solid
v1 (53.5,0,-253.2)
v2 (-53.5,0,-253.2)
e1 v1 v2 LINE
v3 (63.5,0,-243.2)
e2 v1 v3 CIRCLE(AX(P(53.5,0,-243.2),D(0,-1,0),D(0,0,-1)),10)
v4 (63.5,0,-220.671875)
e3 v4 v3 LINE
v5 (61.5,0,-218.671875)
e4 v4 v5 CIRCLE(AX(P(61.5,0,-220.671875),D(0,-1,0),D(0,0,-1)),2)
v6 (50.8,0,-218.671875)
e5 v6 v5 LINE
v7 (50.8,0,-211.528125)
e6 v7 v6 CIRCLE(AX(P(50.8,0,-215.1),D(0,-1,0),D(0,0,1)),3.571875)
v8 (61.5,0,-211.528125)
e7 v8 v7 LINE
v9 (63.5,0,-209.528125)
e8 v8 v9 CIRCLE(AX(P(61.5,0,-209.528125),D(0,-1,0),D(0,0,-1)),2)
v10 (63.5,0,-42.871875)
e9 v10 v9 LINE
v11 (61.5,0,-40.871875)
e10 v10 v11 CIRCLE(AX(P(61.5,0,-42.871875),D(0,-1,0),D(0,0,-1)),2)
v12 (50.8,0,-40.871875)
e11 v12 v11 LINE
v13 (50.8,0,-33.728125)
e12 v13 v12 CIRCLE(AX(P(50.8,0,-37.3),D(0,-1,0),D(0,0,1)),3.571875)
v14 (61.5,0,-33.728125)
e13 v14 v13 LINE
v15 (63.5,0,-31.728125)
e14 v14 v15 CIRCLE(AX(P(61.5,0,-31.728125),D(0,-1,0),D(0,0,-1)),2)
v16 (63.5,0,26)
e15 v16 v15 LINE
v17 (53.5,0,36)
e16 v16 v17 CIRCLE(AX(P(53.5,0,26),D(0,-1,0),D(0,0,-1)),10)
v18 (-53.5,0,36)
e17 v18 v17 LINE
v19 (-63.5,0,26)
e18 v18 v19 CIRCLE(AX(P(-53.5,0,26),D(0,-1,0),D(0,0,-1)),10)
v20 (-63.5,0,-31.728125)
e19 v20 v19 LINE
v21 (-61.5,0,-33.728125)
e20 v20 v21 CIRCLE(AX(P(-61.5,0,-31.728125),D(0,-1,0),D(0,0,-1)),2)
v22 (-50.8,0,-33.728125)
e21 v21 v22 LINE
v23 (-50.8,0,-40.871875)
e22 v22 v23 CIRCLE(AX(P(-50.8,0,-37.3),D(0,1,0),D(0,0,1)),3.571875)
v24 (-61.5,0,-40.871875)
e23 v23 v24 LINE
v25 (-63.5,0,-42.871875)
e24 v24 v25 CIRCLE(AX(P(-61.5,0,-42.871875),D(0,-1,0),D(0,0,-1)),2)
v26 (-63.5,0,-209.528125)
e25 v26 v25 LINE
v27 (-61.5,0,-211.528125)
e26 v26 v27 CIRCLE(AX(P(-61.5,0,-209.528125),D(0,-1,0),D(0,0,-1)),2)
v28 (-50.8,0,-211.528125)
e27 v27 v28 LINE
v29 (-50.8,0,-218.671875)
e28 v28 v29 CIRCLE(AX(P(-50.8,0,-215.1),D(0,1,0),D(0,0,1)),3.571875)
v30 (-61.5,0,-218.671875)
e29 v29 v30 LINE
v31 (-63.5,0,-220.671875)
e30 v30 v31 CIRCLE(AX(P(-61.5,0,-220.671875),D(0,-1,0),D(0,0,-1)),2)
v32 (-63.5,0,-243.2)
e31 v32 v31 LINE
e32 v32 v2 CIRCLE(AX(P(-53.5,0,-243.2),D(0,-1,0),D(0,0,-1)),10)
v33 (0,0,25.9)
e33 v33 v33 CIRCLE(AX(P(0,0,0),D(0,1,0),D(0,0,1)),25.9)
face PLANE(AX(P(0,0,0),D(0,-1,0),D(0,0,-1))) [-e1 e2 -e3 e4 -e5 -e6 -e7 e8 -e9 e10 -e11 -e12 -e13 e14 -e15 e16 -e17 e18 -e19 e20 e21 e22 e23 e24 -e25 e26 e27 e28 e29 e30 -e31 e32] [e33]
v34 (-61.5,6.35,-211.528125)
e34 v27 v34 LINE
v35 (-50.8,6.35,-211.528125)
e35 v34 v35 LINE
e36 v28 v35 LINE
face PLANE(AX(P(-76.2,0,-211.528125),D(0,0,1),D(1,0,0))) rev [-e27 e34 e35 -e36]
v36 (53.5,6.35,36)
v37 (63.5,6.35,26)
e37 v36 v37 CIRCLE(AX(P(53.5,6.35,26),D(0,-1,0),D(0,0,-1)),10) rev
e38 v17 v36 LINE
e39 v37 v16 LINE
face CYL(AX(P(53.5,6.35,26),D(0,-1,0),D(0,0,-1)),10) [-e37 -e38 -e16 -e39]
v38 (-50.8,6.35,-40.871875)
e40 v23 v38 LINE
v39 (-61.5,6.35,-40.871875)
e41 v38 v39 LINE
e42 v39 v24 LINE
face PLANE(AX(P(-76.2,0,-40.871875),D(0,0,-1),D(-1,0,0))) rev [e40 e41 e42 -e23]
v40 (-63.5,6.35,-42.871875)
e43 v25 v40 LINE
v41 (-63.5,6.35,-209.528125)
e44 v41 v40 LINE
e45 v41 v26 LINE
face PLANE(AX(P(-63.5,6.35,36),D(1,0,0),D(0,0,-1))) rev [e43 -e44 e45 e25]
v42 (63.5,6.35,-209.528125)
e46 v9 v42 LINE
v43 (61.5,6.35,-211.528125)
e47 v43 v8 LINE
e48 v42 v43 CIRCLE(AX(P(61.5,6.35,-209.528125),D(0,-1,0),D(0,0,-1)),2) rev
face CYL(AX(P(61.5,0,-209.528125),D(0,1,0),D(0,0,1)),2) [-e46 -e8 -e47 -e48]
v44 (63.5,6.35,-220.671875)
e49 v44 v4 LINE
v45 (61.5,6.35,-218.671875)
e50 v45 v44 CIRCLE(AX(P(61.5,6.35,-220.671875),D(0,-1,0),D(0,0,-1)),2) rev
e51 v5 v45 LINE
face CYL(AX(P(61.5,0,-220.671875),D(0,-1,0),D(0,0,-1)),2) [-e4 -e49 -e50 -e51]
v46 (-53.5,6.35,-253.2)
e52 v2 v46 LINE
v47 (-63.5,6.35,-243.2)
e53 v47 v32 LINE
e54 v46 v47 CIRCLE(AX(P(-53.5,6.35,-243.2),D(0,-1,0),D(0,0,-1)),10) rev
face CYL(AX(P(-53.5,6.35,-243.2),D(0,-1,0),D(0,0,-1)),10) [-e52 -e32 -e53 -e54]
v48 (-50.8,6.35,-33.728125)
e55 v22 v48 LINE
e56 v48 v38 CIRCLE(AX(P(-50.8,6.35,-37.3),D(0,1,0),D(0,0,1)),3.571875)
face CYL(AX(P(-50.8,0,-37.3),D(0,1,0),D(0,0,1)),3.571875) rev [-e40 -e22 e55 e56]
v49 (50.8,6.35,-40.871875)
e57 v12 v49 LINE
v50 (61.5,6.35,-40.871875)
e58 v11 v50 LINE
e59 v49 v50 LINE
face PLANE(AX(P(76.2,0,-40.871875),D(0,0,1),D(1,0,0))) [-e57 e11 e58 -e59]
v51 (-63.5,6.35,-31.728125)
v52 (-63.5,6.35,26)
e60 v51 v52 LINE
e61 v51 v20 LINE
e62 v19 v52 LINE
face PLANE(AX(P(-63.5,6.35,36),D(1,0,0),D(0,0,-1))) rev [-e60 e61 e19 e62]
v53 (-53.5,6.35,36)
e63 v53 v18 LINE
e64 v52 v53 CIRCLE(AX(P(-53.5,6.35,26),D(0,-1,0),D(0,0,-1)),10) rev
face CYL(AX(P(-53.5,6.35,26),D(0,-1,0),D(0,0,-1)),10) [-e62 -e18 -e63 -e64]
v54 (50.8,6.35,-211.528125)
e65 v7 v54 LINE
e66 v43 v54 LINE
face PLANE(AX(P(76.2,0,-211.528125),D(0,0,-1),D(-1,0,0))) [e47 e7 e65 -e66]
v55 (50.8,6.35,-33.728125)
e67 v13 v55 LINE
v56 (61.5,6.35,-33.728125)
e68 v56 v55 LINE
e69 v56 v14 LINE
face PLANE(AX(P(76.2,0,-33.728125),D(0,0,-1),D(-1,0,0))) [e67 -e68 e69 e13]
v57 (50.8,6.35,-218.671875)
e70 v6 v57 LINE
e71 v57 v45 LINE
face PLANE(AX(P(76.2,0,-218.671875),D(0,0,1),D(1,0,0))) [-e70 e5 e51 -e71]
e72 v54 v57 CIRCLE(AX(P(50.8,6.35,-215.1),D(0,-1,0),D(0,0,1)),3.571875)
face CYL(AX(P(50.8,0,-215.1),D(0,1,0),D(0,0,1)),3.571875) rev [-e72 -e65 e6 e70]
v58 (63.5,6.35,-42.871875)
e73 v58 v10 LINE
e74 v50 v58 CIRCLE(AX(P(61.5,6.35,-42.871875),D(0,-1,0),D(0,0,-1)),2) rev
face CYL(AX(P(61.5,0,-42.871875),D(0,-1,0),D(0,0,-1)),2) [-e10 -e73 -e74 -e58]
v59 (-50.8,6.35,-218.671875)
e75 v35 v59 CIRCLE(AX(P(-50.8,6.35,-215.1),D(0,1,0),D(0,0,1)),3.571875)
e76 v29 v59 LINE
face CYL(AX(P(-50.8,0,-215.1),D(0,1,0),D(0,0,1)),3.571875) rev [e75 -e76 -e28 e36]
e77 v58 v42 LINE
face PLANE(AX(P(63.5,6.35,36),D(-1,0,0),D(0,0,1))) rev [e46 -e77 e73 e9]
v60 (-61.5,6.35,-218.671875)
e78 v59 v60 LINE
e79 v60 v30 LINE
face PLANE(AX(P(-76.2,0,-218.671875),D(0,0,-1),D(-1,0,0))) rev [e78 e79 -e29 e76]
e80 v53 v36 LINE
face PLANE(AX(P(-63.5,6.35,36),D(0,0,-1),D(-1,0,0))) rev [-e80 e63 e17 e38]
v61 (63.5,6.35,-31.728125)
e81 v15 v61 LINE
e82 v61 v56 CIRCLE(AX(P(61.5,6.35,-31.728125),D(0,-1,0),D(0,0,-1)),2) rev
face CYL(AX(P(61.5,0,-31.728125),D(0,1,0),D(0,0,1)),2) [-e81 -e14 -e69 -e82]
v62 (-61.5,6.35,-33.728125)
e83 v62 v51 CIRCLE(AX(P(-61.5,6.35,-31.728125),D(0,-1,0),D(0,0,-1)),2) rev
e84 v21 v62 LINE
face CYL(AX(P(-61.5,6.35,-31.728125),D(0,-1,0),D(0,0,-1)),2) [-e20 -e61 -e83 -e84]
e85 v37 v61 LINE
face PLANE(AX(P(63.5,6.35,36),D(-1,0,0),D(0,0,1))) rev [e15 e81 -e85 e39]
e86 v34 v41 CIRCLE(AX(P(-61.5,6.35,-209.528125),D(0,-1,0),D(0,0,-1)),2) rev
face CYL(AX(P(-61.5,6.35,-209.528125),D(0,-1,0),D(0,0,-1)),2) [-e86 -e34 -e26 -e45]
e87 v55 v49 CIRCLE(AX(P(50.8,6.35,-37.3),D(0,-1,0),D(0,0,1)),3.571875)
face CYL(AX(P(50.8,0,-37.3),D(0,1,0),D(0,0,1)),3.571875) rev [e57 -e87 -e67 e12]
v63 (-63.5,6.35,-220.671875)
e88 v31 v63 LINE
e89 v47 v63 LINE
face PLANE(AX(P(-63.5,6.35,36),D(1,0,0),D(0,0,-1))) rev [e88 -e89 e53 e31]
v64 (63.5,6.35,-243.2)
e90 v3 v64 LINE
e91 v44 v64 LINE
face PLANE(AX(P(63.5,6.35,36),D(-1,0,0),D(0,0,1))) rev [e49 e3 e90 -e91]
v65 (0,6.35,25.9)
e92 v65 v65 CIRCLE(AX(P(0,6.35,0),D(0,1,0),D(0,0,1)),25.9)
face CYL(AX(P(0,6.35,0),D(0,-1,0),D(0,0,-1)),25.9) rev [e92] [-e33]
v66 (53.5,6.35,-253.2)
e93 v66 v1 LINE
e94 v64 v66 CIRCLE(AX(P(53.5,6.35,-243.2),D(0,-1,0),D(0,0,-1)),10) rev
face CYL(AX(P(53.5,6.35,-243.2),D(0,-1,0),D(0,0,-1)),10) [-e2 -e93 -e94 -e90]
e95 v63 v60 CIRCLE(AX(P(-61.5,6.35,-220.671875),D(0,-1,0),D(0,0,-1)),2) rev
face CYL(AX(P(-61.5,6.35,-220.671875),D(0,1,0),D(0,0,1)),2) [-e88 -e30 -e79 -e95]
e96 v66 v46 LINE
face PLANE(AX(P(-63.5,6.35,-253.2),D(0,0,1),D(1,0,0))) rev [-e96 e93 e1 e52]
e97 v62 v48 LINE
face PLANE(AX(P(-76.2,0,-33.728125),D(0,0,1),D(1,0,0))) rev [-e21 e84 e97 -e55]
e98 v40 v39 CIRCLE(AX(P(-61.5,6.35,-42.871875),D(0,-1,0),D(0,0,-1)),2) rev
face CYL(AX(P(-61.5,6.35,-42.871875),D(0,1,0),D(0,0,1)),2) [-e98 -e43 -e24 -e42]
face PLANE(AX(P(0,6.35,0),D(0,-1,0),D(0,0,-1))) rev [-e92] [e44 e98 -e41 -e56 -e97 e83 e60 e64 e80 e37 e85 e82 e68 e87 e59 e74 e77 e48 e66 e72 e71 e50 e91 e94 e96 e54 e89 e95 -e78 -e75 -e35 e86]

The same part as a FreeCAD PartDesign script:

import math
import FreeCAD as App
import Part
import Sketcher

V = App.Vector
Q = App.Units.Quantity


def edges_at(feature, points):
    """Names of the edges that pass closest to the given points."""
    edges = feature.Shape.Edges
    near = lambda p: min(range(len(edges)), key=lambda i: edges[i].distToShape(Part.Vertex(*p))[0])
    return sorted({f"Edge{near(p) + 1}" for p in points})

doc = App.newDocument("Part")
params = doc.addObject("Spreadsheet::Sheet", "Params")
for row, (alias, value) in enumerate([
    ("sketch1_diameter", "51.8 mm"),
    ("sketch1_width", "127 mm"),
    ("sketch1_height", "289.2 mm"),
    ("pad1_length", "6.35 mm"),
    ("sketch2_width", "25.4 mm"),
    ("fillet_radius", "2 mm"),
    ("fillet2_radius", "10 mm"),
], start=1):
    params.set(f"A{row}", alias)
    params.set(f"B{row}", "=" + value)
    params.setAlias(f"B{row}", alias)

body = doc.addObject("PartDesign::Body", "Body")

# Sketch on XZ plane
sketch1 = doc.addObject("Sketcher::SketchObject", "Sketch")
body.addObject(sketch1)
sketch1.AttachmentSupport = (doc.XZ_Plane, [""])
sketch1.MapMode = "FlatFace"
sketch1.addGeometry(Part.LineSegment(V(-64, -253, 0), V(-64, 36, 0)), False)
sketch1.addGeometry(Part.LineSegment(V(-64, 36, 0), V(64, 36, 0)), False)
sketch1.addGeometry(Part.LineSegment(V(64, 36, 0), V(64, -253, 0)), False)
sketch1.addGeometry(Part.LineSegment(V(64, -253, 0), V(-64, -253, 0)), False)
sketch1.addGeometry(Part.Circle(V(0, 0, 0), V(0, 0, 1), 26), False)
sketch1.addConstraint(Sketcher.Constraint("Coincident", 0, 2, 1, 1))
sketch1.addConstraint(Sketcher.Constraint("Coincident", 1, 2, 2, 1))
sketch1.addConstraint(Sketcher.Constraint("Coincident", 2, 2, 3, 1))
sketch1.addConstraint(Sketcher.Constraint("Coincident", 3, 2, 0, 1))
sketch1.addConstraint(Sketcher.Constraint("Vertical", 0))
sketch1.addConstraint(Sketcher.Constraint("Horizontal", 1))
sketch1.addConstraint(Sketcher.Constraint("Vertical", 2))
sketch1.addConstraint(Sketcher.Constraint("Horizontal", 3))
sketch1.addConstraint(Sketcher.Constraint("Coincident", 4, 3, -1, 1))
sketch1.addConstraint(Sketcher.Constraint("Diameter", 4, Q("51.8 mm")))
sketch1.addConstraint(Sketcher.Constraint("DistanceX", 1, 1, 1, 2, Q("127 mm")))
sketch1.addConstraint(Sketcher.Constraint("DistanceY", 0, 1, 0, 2, Q("289.2 mm")))
sketch1.addConstraint(Sketcher.Constraint("DistanceY", -1, 1, 0, 2, Q("36 mm")))
sketch1.addConstraint(Sketcher.Constraint("DistanceX", 0, 2, -1, 1, Q("63.5 mm")))
sketch1.setExpression("Constraints[9]", "Params.sketch1_diameter")
sketch1.setExpression("Constraints[10]", "Params.sketch1_width")
sketch1.setExpression("Constraints[11]", "Params.sketch1_height")
pad1 = doc.addObject("PartDesign::Pad", "Pad")
body.addObject(pad1)
pad1.Profile = sketch1
pad1.setExpression("Length", "Params.pad1_length")
pad1.Reversed = True

# Sketch on XZ plane
sketch2 = doc.addObject("Sketcher::SketchObject", "Sketch001")
body.addObject(sketch2)
sketch2.AttachmentSupport = (doc.XZ_Plane, [""])
sketch2.MapMode = "FlatFace"
sketch2.AttachmentOffset = App.Placement(V(0, 0, -6.35), App.Rotation())
sketch2.addGeometry(Part.LineSegment(V(-50.8, -218.7, 0), V(-76.2, -218.7, 0)), False)
sketch2.addGeometry(Part.ArcOfCircle(Part.Circle(V(-76.2, -215.1, 0), V(0, 0, 1), 3.6), math.radians(90), math.radians(270)), False)
sketch2.addGeometry(Part.LineSegment(V(-76.2, -211.5, 0), V(-50.8, -211.5, 0)), False)
sketch2.addGeometry(Part.ArcOfCircle(Part.Circle(V(-50.8, -215.1, 0), V(0, 0, 1), 3.6), math.radians(-90), math.radians(90)), False)
sketch2.addGeometry(Part.LineSegment(V(-50.8, -40.9, 0), V(-76.2, -40.9, 0)), False)
sketch2.addGeometry(Part.ArcOfCircle(Part.Circle(V(-76.2, -37.3, 0), V(0, 0, 1), 3.6), math.radians(90), math.radians(270)), False)
sketch2.addGeometry(Part.LineSegment(V(-76.2, -33.7, 0), V(-50.8, -33.7, 0)), False)
sketch2.addGeometry(Part.ArcOfCircle(Part.Circle(V(-50.8, -37.3, 0), V(0, 0, 1), 3.6), math.radians(-90), math.radians(90)), False)
sketch2.addConstraint(Sketcher.Constraint("Tangent", 0, 2, 1, 2))
sketch2.addConstraint(Sketcher.Constraint("Tangent", 1, 1, 2, 1))
sketch2.addConstraint(Sketcher.Constraint("Tangent", 2, 2, 3, 2))
sketch2.addConstraint(Sketcher.Constraint("Tangent", 3, 1, 0, 1))
sketch2.addConstraint(Sketcher.Constraint("Tangent", 4, 2, 5, 2))
sketch2.addConstraint(Sketcher.Constraint("Tangent", 5, 1, 6, 1))
sketch2.addConstraint(Sketcher.Constraint("Tangent", 6, 2, 7, 2))
sketch2.addConstraint(Sketcher.Constraint("Tangent", 7, 1, 4, 1))
sketch2.addConstraint(Sketcher.Constraint("Horizontal", 0))
sketch2.addConstraint(Sketcher.Constraint("Horizontal", 2))
sketch2.addConstraint(Sketcher.Constraint("Horizontal", 4))
sketch2.addConstraint(Sketcher.Constraint("Horizontal", 6))
sketch2.addConstraint(Sketcher.Constraint("Equal", 3, 5))
sketch2.addConstraint(Sketcher.Constraint("Vertical", 1, 3, 5, 3))
sketch2.addConstraint(Sketcher.Constraint("Vertical", 3, 3, 7, 3))
sketch2.addConstraint(Sketcher.Constraint("DistanceX", 0, 2, 0, 1, Q("25.4 mm")))
sketch2.addConstraint(Sketcher.Constraint("DistanceX", 1, 3, -1, 1, Q("76.2 mm")))
sketch2.addConstraint(Sketcher.Constraint("DistanceY", 1, 3, -1, 1, Q("215.1 mm")))
sketch2.addConstraint(Sketcher.Constraint("DistanceY", 5, 3, -1, 1, Q("37.3 mm")))
sketch2.addConstraint(Sketcher.Constraint("Radius", 1, Q("3.571875 mm")))
sketch2.setExpression("Constraints[15]", "Params.sketch2_width")
pocket1 = doc.addObject("PartDesign::Pocket", "Pocket")
body.addObject(pocket1)
pocket1.Profile = sketch2
pocket1.Type = "ThroughAll"
pocket1.Reversed = True
doc.recompute()

mirrored = doc.addObject("PartDesign::Mirrored", "Mirrored")
body.addObject(mirrored)
mirrored.Originals = [pocket1]
mirrored.MirrorPlane = (doc.YZ_Plane, [""])
body.Tip = mirrored
doc.recompute()

fillet = doc.addObject("PartDesign::Fillet", "Fillet")
body.addObject(fillet)
fillet.Base = (mirrored, edges_at(mirrored, [
    (-63.5, 3.175, -211.528),
    (-63.5, 3.175, -218.672),
    (-63.5, 3.175, -40.872),
    (-63.5, 3.175, -33.728),
    (63.5, 3.175, -218.672),
    (63.5, 3.175, -211.528),
    (63.5, 3.175, -33.728),
    (63.5, 3.175, -40.872),
]))
fillet.setExpression("Radius", "Params.fillet_radius")
doc.recompute()

fillet2 = doc.addObject("PartDesign::Fillet", "Fillet001")
body.addObject(fillet2)
fillet2.Base = (fillet, edges_at(fillet, [
    (-63.5, 3.175, -253.2),
    (63.5, 3.175, -253.2),
    (63.5, 3.175, 36),
    (-63.5, 3.175, 36),
]))
fillet2.setExpression("Radius", "Params.fillet2_radius")

doc.recompute()
